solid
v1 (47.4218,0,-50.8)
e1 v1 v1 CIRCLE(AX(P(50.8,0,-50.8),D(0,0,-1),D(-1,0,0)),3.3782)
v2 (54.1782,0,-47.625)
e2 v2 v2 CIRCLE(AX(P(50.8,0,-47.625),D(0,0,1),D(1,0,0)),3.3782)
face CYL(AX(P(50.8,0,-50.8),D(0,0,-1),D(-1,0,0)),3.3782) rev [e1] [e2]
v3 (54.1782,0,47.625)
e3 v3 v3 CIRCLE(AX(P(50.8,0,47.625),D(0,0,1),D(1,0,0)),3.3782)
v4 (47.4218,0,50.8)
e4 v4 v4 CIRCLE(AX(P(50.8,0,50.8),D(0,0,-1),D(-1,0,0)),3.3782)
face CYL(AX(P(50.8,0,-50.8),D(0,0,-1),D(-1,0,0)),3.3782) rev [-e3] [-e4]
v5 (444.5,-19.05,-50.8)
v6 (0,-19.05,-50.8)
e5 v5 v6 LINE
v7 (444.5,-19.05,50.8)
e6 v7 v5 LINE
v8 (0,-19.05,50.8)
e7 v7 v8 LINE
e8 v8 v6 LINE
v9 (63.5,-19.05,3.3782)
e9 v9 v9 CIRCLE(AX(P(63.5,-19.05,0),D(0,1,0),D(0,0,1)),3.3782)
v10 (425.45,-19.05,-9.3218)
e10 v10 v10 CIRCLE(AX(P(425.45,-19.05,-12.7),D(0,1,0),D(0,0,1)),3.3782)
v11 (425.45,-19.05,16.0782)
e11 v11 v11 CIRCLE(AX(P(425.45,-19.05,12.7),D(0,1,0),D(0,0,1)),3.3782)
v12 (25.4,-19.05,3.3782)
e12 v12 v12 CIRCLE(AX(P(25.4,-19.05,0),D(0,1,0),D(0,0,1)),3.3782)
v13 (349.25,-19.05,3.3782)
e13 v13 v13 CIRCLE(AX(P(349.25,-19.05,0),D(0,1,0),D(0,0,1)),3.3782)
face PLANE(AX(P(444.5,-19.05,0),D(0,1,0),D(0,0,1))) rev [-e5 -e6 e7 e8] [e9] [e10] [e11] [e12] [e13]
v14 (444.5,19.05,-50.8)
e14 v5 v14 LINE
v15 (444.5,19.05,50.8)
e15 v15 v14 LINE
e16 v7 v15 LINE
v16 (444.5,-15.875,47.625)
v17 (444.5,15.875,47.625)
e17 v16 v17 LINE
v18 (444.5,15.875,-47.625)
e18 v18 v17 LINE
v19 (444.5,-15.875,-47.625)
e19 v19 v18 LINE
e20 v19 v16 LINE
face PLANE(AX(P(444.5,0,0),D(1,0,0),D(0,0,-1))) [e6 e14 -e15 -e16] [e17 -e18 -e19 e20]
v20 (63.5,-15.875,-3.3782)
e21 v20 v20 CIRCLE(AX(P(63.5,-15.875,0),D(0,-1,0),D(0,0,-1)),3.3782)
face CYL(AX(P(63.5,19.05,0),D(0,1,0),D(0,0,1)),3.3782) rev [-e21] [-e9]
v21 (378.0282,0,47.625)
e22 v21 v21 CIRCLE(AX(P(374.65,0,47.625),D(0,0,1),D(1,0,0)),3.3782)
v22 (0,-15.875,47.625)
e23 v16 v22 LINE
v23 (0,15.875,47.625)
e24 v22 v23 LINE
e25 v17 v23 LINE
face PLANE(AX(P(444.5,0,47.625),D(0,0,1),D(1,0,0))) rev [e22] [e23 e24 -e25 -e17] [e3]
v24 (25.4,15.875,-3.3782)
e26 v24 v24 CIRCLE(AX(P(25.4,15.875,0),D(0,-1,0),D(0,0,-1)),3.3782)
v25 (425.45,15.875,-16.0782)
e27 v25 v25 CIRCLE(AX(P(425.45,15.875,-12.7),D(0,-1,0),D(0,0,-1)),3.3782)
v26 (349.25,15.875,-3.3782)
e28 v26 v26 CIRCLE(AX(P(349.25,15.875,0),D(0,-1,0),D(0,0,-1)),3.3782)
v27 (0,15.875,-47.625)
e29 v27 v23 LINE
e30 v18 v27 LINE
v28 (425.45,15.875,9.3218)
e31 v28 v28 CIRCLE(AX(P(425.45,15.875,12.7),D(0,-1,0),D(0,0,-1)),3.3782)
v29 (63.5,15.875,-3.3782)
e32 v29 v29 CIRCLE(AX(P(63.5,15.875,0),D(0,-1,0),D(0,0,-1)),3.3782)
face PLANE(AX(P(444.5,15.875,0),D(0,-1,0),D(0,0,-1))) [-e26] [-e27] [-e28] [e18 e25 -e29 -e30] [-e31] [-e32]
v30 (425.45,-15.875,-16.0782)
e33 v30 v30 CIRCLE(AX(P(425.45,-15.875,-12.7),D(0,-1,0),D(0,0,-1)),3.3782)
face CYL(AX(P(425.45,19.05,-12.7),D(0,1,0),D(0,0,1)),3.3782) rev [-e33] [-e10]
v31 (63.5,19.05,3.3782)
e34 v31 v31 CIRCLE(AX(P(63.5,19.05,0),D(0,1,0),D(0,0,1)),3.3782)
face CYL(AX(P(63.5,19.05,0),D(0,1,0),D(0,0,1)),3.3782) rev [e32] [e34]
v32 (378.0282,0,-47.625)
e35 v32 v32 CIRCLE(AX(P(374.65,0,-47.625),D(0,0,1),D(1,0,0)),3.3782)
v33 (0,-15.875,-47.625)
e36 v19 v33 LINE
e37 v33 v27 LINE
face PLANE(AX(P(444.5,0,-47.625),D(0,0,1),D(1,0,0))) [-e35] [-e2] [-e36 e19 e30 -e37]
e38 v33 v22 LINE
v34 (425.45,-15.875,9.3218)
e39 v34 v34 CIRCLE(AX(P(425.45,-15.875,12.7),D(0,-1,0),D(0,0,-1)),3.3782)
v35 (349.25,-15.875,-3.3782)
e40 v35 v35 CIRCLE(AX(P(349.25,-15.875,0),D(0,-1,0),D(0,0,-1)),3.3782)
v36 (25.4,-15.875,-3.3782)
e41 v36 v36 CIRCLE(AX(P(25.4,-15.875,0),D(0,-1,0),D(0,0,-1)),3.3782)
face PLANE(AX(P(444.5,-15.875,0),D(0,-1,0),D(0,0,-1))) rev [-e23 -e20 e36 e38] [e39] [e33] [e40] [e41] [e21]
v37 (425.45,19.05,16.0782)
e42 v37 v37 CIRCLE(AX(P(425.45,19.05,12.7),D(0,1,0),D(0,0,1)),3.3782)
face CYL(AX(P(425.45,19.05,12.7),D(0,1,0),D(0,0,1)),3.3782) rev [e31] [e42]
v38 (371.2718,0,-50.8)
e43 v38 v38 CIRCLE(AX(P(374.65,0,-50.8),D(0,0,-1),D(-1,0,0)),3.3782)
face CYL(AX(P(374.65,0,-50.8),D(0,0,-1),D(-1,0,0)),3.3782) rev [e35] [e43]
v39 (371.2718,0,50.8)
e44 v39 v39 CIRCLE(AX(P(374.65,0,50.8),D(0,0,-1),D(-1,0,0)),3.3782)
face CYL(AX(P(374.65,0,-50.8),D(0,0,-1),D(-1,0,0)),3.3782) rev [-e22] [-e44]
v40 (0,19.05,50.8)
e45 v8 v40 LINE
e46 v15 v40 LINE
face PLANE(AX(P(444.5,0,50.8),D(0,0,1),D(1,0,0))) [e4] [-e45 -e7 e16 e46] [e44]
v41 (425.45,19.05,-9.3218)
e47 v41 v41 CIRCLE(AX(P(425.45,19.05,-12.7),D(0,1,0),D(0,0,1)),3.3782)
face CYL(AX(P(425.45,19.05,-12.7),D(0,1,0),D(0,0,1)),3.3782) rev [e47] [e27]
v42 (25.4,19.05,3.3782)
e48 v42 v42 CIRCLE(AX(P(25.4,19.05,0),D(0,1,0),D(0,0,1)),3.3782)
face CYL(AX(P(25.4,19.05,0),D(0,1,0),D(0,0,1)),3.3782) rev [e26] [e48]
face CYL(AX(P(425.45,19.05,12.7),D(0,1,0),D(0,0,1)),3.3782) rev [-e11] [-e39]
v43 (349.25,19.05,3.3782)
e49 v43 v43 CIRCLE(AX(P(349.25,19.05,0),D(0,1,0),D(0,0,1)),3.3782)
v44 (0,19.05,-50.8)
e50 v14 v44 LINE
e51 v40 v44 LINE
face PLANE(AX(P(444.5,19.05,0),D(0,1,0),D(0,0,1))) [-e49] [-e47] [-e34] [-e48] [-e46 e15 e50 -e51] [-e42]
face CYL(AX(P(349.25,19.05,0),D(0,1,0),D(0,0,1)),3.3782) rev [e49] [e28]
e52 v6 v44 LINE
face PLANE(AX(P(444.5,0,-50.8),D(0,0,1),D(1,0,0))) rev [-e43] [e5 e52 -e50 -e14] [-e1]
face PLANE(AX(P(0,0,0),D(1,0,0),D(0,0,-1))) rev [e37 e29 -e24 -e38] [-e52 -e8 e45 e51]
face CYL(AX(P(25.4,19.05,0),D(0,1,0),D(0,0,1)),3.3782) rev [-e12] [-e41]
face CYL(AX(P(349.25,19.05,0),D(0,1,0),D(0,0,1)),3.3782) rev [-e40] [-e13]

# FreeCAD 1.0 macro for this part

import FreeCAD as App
import Part
import Sketcher
Q = App.Units.Quantity


def add_polygon(sketch, points):
    """Adds a closed chain of lines whose ends are joined by coincident constraints."""
    first, n = sketch.GeometryCount, len(points)
    for a, b in zip(points, points[1:] + points[:1]):
        sketch.addGeometry(Part.LineSegment(App.Vector(*a, 0), App.Vector(*b, 0)), False)
    for i in range(n):
        sketch.addConstraint(Sketcher.Constraint("Coincident", first + i, 2, first + (i + 1) % n, 1))

doc = App.newDocument("Part")
body = doc.addObject("PartDesign::Body", "Body")

sketch1 = body.newObject("Sketcher::SketchObject", "Sketch")
sketch1.AttachmentSupport = (doc.getObject("YZ_Plane"), [""])
sketch1.MapMode = "FlatFace"
add_polygon(sketch1, [(19, 51), (-19, 51), (-19, -51), (19, -51)])
add_polygon(sketch1, [(-16, -48), (-16, 48), (16, 48), (16, -48)])
sketch1.addConstraint([
    Sketcher.Constraint("Horizontal", 0),
    Sketcher.Constraint("Vertical", 1),
    Sketcher.Constraint("Horizontal", 2),
    Sketcher.Constraint("Vertical", 3),
    Sketcher.Constraint("Vertical", 4),
    Sketcher.Constraint("Horizontal", 5),
    Sketcher.Constraint("Vertical", 6),
    Sketcher.Constraint("Horizontal", 7),
    Sketcher.Constraint("Symmetric", 0, 2, 2, 2, -1, 1),
    Sketcher.Constraint("Symmetric", 4, 2, 6, 2, -1, 1),
    Sketcher.Constraint("DistanceY", 1, 2, 1, 1, Q("4 in")),
    Sketcher.Constraint("DistanceX", 0, 2, 0, 1, Q("1.5 in")),
    Sketcher.Constraint("DistanceX", 5, 1, 5, 2, Q("1.25 in")),
    Sketcher.Constraint("DistanceY", 4, 1, 4, 2, Q("3.75 in")),
])
pad1 = body.newObject("PartDesign::Pad", "Pad")
pad1.Profile = sketch1
pad1.Length = Q("17.5 in")

sketch2 = body.newObject("Sketcher::SketchObject", "Sketch001")
sketch2.AttachmentSupport = (doc.getObject("XZ_Plane"), [""])
sketch2.MapMode = "FlatFace"
sketch2.AttachmentOffset = App.Placement(App.Vector(0, 0, -0.75 * 25.4), App.Rotation())
sketch2.addGeometry([
    Part.Circle(App.Vector(25.4, 0, 0), App.Vector(0, 0, 1), 3.4),
    Part.Circle(App.Vector(63.5, 0, 0), App.Vector(0, 0, 1), 3.4),
    Part.Circle(App.Vector(349.2, 0, 0), App.Vector(0, 0, 1), 3.4),
    Part.Circle(App.Vector(425.4, -12.7, 0), App.Vector(0, 0, 1), 3.4),
    Part.Circle(App.Vector(425.4, 12.7, 0), App.Vector(0, 0, 1), 3.4),
], False)
sketch2.addConstraint([
    Sketcher.Constraint("Equal", 0, 1),
    Sketcher.Constraint("Equal", 1, 2),
    Sketcher.Constraint("Equal", 2, 3),
    Sketcher.Constraint("Equal", 3, 4),
    Sketcher.Constraint("Symmetric", 3, 3, 4, 3, -1),
    Sketcher.Constraint("PointOnObject", 0, 3, -1),
    Sketcher.Constraint("PointOnObject", 1, 3, -1),
    Sketcher.Constraint("PointOnObject", 2, 3, -1),
    Sketcher.Constraint("Diameter", 0, Q("0.266 in")),
    Sketcher.Constraint("DistanceX", -1, 1, 0, 3, Q("1 in")),
    Sketcher.Constraint("DistanceX", 2, 3, 3, 3, Q("3 in")),
    Sketcher.Constraint("DistanceY", 3, 3, 4, 3, Q("1 in")),
    Sketcher.Constraint("DistanceX", -1, 1, 1, 3, Q("2.5 in")),
    Sketcher.Constraint("DistanceX", -1, 1, 2, 3, Q("13.75 in")),
])
doc.recompute()
hole = body.newObject("PartDesign::Hole", "Hole")
hole.Profile = sketch2
hole.ThreadType = "None"
hole.Diameter = Q("0.266 in")
hole.DepthType = "ThroughAll"
hole.Reversed = True

sketch3 = body.newObject("Sketcher::SketchObject", "Sketch002")
sketch3.AttachmentSupport = (doc.getObject("XY_Plane"), [""])
sketch3.MapMode = "FlatFace"
sketch3.AttachmentOffset = App.Placement(App.Vector(0, 0, -2 * 25.4), App.Rotation())
sketch3.addGeometry([
    Part.Circle(App.Vector(50.8, 0, 0), App.Vector(0, 0, 1), 3.4),
    Part.Circle(App.Vector(374.6, 0, 0), App.Vector(0, 0, 1), 3.4),
], False)
sketch3.addConstraint([
    Sketcher.Constraint("Equal", 0, 1),
    Sketcher.Constraint("PointOnObject", 0, 3, -1),
    Sketcher.Constraint("PointOnObject", 1, 3, -1),
    Sketcher.Constraint("Diameter", 0, Q("0.266 in")),
    Sketcher.Constraint("DistanceX", -1, 1, 0, 3, Q("2 in")),
    Sketcher.Constraint("DistanceX", -1, 1, 1, 3, Q("14.75 in")),
])
doc.recompute()
hole2 = body.newObject("PartDesign::Hole", "Hole001")
hole2.Profile = sketch3
hole2.ThreadType = "None"
hole2.Diameter = Q("0.266 in")
hole2.DepthType = "ThroughAll"
hole2.Reversed = True

doc.recompute()
